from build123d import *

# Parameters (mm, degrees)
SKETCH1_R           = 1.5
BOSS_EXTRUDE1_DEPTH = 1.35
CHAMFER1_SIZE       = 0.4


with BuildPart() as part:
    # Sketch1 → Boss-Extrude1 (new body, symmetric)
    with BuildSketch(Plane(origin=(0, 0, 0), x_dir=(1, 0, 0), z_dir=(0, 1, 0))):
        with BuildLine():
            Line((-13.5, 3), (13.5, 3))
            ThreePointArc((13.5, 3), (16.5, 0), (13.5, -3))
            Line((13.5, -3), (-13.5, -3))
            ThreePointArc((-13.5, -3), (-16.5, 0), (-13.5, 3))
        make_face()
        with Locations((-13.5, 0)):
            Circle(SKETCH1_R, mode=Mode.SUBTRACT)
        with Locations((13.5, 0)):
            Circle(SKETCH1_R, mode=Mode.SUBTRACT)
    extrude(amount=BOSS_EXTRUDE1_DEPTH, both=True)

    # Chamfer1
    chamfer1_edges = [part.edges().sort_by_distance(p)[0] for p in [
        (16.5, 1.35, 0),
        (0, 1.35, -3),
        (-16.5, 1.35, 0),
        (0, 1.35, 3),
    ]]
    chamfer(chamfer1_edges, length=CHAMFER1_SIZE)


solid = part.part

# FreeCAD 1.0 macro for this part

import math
import FreeCAD as App
import Part
import Sketcher


def edges_at(feature, points):
    """Names of the edges that pass closest to the given points."""
    edges = feature.Shape.Edges
    near = lambda p: min(range(len(edges)), key=lambda i: edges[i].distToShape(Part.Vertex(*p))[0])
    return sorted({f"Edge{near(p) + 1}" for p in points})

doc = App.newDocument("Part")
body = doc.addObject("PartDesign::Body", "Body")

sketch1 = body.newObject("Sketcher::SketchObject", "Sketch")
sketch1.AttachmentSupport = (doc.getObject("XZ_Plane"), [""])
sketch1.MapMode = "FlatFace"
sketch1.addGeometry([
    Part.LineSegment(App.Vector(13.5, -3, 0), App.Vector(-13.5, -3, 0)),
    Part.ArcOfCircle(Part.Circle(App.Vector(-13.5, 0, 0), App.Vector(0, 0, 1), 3), math.radians(90), math.radians(270)),
    Part.LineSegment(App.Vector(-13.5, 3, 0), App.Vector(13.5, 3, 0)),
    Part.ArcOfCircle(Part.Circle(App.Vector(13.5, 0, 0), App.Vector(0, 0, 1), 3), math.radians(-90), math.radians(90)),
    Part.Circle(App.Vector(13.5, 0, 0), App.Vector(0, 0, 1), 1.5),
    Part.Circle(App.Vector(-13.5, 0, 0), App.Vector(0, 0, 1), 1.5),
], False)
sketch1.addConstraint([
    Sketcher.Constraint("Tangent", 0, 2, 1, 2),
    Sketcher.Constraint("Tangent", 1, 1, 2, 1),
    Sketcher.Constraint("Tangent", 2, 2, 3, 2),
    Sketcher.Constraint("Tangent", 3, 1, 0, 1),
    Sketcher.Constraint("Horizontal", 0),
    Sketcher.Constraint("Horizontal", 2),
    Sketcher.Constraint("Coincident", 4, 3, 3, 3),
    Sketcher.Constraint("Coincident", 5, 3, 1, 3),
    Sketcher.Constraint("Equal", 4, 5),
    Sketcher.Constraint("Symmetric", 1, 3, 3, 3, -1, 1),
    Sketcher.Constraint("Diameter", 4, 3.0),
    Sketcher.Constraint("Radius", 1, 3.0),
    Sketcher.Constraint("DistanceX", 0, 2, 0, 1, 27.0),
])
pad1 = body.newObject("PartDesign::Pad", "Pad")
pad1.Profile = sketch1
pad1.Length = 2.7
pad1.Midplane = True
doc.recompute()

chamfer = body.newObject("PartDesign::Chamfer", "Chamfer")
chamfer.Base = (pad1, edges_at(pad1, [
    (16.5, 1.35, 0),
    (0, 1.35, -3),
    (-16.5, 1.35, 0),
    (0, 1.35, 3),
]))
chamfer.Size = 0.4

doc.recompute()
